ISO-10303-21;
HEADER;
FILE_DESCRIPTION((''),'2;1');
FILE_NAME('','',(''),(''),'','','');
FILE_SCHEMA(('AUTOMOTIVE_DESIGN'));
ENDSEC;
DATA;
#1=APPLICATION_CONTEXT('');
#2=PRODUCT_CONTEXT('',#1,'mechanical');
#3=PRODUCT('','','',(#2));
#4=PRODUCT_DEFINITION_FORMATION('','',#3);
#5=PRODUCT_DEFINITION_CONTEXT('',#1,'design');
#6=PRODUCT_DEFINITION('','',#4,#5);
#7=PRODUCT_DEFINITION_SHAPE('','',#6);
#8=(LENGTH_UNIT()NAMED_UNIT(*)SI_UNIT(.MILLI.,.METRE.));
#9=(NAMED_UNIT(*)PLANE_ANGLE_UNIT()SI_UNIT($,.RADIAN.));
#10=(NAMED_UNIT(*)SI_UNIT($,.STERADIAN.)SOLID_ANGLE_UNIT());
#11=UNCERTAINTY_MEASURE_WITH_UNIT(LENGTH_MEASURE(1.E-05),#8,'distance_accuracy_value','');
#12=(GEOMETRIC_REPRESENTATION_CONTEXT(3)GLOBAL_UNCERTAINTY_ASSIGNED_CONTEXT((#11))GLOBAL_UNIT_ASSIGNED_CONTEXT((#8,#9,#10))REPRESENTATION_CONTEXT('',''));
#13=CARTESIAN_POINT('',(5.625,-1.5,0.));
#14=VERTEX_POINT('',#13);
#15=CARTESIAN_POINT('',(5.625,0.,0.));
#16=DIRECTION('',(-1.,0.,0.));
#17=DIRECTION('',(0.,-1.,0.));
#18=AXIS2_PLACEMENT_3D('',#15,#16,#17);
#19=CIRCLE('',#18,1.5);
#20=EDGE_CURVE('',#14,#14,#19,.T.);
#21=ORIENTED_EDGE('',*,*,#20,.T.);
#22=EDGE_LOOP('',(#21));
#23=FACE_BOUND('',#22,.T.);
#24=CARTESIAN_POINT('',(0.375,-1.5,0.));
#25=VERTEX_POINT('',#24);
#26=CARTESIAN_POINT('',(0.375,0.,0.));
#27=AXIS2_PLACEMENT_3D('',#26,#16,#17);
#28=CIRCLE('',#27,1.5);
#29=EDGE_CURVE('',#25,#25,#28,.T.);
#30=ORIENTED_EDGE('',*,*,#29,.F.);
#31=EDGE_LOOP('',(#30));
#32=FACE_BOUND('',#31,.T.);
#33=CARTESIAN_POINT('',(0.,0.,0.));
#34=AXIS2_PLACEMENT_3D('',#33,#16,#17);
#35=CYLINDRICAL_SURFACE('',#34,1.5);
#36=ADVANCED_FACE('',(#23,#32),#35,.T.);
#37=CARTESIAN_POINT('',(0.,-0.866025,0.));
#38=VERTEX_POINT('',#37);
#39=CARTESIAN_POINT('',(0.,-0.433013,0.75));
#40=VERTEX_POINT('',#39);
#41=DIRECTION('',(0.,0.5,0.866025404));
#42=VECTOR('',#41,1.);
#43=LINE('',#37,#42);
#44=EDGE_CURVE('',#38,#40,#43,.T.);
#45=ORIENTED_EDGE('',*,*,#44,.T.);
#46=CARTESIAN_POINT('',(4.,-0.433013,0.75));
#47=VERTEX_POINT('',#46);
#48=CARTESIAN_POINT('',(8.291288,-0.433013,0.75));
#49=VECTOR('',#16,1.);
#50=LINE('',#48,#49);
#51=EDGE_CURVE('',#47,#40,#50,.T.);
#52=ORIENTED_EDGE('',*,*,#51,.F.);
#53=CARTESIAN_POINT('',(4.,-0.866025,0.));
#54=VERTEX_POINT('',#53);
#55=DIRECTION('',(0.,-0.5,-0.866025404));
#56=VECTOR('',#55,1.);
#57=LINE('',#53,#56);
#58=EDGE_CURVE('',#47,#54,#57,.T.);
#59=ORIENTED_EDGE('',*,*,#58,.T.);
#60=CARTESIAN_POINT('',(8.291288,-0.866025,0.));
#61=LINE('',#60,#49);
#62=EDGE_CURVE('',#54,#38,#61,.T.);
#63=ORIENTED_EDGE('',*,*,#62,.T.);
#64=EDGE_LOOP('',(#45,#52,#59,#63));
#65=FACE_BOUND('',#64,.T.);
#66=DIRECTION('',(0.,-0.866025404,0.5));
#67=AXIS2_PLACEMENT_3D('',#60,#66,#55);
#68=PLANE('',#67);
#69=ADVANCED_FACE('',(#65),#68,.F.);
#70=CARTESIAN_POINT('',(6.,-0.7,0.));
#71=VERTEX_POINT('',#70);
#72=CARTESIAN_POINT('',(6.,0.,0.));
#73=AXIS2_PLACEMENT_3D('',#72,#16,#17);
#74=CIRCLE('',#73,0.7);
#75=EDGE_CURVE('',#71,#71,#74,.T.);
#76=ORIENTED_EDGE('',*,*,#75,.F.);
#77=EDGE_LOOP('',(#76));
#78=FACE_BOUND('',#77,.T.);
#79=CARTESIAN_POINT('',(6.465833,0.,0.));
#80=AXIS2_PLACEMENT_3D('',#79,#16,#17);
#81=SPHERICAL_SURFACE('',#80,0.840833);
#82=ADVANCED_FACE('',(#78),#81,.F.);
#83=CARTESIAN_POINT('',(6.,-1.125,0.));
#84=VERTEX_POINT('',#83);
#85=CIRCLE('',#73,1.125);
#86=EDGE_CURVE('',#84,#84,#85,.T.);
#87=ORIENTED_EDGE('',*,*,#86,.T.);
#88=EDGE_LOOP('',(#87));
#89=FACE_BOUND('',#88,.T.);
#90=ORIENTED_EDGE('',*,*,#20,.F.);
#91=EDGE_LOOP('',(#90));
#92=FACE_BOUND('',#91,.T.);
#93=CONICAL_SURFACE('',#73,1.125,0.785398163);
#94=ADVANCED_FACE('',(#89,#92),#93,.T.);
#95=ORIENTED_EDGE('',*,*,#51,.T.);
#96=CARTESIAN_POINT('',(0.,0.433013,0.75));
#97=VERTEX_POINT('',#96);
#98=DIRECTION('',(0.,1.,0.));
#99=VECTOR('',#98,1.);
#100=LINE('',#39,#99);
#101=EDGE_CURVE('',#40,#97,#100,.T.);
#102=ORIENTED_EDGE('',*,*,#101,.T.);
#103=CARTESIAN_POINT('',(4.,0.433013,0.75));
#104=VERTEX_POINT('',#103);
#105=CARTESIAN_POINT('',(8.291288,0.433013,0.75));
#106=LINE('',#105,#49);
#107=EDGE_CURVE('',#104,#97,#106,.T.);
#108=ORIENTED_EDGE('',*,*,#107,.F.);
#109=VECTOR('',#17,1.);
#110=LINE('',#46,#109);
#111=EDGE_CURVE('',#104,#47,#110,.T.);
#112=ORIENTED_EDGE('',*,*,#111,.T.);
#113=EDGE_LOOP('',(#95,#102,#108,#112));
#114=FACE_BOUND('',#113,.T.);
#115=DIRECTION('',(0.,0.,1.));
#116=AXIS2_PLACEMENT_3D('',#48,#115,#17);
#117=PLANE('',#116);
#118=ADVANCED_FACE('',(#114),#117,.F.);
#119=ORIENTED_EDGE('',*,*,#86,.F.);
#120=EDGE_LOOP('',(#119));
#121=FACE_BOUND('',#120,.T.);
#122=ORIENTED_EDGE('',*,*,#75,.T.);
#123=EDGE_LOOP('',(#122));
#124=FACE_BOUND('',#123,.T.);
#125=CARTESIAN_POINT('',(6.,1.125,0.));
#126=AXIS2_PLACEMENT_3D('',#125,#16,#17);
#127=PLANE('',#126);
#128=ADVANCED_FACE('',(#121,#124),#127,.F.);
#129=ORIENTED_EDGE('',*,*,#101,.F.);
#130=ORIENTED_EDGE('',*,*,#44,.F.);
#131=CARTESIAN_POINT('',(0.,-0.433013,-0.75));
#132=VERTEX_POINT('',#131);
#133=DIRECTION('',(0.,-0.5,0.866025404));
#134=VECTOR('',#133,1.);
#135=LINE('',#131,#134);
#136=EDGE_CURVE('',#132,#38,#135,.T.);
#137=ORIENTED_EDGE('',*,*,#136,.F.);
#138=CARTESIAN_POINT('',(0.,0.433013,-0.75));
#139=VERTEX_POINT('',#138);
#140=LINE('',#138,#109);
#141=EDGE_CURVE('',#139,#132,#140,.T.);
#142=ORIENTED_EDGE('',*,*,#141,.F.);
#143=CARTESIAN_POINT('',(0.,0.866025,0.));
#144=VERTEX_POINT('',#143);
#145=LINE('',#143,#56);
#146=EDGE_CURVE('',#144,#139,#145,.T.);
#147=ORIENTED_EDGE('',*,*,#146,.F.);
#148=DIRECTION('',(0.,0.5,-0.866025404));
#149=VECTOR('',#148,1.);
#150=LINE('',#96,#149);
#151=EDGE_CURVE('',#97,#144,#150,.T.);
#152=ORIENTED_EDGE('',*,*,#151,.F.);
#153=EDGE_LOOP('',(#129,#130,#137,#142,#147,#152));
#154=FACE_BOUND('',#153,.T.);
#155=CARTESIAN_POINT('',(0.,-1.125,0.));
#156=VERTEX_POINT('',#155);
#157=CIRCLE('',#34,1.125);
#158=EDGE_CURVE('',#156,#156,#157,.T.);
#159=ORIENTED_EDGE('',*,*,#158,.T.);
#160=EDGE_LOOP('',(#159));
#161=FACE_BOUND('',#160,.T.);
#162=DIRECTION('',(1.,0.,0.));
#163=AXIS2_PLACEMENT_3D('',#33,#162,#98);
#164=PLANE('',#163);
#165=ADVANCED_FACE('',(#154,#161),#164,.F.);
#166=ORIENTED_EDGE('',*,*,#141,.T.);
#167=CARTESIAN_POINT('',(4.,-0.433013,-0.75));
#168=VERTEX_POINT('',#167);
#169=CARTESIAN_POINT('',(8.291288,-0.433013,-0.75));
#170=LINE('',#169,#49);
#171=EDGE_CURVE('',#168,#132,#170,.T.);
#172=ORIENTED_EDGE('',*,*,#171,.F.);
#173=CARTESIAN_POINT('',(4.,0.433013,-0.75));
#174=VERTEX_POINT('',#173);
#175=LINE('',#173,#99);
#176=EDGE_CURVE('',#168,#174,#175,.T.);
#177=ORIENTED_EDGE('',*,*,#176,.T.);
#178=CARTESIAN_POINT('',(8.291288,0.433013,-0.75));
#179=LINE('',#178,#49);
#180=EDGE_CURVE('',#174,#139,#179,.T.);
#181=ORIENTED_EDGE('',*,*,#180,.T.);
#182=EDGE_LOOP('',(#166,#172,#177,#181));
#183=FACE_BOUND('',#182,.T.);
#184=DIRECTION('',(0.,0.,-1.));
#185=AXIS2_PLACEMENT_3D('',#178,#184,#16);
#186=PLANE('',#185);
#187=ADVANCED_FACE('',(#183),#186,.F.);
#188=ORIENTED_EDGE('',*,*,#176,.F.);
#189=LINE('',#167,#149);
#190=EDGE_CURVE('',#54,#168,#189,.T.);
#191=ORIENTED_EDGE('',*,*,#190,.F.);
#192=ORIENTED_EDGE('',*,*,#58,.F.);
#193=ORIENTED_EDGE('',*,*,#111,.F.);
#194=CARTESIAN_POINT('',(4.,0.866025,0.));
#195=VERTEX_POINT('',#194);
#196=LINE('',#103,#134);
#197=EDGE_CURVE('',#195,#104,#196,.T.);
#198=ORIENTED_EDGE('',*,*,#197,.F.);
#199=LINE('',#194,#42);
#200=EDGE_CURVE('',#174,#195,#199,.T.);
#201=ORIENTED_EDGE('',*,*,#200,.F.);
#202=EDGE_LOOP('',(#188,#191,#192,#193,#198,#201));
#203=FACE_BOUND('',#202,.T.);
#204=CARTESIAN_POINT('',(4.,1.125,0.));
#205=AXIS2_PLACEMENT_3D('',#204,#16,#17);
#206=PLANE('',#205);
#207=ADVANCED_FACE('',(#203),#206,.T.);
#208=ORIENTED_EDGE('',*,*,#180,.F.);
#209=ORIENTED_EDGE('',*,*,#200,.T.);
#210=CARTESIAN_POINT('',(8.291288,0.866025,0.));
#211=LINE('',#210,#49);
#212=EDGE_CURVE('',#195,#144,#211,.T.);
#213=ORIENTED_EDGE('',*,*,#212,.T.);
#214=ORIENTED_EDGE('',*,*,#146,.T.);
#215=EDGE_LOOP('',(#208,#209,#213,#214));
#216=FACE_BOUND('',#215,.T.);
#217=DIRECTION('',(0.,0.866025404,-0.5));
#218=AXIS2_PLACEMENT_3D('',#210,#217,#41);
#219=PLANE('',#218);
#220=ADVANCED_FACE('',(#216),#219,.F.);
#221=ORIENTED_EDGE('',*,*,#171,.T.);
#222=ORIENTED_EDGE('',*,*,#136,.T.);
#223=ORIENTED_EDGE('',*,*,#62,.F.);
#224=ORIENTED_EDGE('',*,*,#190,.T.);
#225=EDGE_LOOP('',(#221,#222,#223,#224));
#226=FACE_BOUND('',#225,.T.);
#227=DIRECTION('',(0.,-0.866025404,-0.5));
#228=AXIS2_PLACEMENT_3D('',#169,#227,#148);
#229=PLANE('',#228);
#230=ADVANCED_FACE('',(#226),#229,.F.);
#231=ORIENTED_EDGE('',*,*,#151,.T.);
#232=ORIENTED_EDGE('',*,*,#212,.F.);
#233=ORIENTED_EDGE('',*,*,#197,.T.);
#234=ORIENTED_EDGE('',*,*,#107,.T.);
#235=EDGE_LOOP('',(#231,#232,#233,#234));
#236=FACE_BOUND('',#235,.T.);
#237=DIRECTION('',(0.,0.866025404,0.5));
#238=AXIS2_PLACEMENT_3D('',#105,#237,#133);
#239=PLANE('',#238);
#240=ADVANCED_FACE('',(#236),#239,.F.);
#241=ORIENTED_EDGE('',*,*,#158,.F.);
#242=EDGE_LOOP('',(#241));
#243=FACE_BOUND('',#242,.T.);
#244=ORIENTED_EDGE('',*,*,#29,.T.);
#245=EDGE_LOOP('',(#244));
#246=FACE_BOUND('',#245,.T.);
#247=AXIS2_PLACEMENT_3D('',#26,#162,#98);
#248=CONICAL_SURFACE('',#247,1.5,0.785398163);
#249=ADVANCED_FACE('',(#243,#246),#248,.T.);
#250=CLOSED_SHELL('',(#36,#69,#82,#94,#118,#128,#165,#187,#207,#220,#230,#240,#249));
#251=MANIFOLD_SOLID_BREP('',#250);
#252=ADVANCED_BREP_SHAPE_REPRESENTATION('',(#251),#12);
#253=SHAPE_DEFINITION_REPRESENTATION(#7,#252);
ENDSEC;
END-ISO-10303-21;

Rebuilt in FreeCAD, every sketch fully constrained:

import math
import FreeCAD as App
import Part
import Sketcher
from FreeCAD import Vector
Q = App.Units.Quantity


def add_polygon(sketch, points):
    """Adds a closed chain of lines whose ends are joined by coincident constraints."""
    first, n = sketch.GeometryCount, len(points)
    for a, b in zip(points, points[1:] + points[:1]):
        sketch.addGeometry(Part.LineSegment(App.Vector(*a, 0), App.Vector(*b, 0)), False)
    for i in range(n):
        sketch.addConstraint(Sketcher.Constraint("Coincident", first + i, 2, first + (i + 1) % n, 1))

doc = App.newDocument("Part")
body = doc.addObject("PartDesign::Body", "Body")

# Sketch on XY plane
sketch1 = body.newObject("Sketcher::SketchObject", "Sketch")
sketch1.AttachmentSupport = (doc.getObject("XY_Plane"), [""])
sketch1.MapMode = "FlatFace"
sketch1.addGeometry([
    Part.LineSegment(Vector(0, 1.12, 0), Vector(0, 0, 0)),  # 0
    Part.LineSegment(Vector(0, 0, 0), Vector(5.62, 0, 0)),  # 1
    Part.ArcOfCircle(Part.Circle(Vector(6.47, 0, 0), Vector(0, 0, 1), 0.84), math.radians(124), math.radians(180)),  # 2
    Part.LineSegment(Vector(6, 0.7, 0), Vector(6, 1.12, 0)),  # 3
    Part.LineSegment(Vector(6, 1.12, 0), Vector(5.62, 1.5, 0)),  # 4
    Part.LineSegment(Vector(5.62, 1.5, 0), Vector(0.38, 1.5, 0)),  # 5
    Part.LineSegment(Vector(0.38, 1.5, 0), Vector(0, 1.12, 0)),  # 6
], False)
sketch1.addConstraint([
    Sketcher.Constraint("Coincident", 0, 2, 1, 1),
    Sketcher.Constraint("Coincident", 1, 2, 2, 2),
    Sketcher.Constraint("Coincident", 2, 1, 3, 1),
    Sketcher.Constraint("Coincident", 3, 2, 4, 1),
    Sketcher.Constraint("Coincident", 4, 2, 5, 1),
    Sketcher.Constraint("Coincident", 5, 2, 6, 1),
    Sketcher.Constraint("Coincident", 6, 2, 0, 1),
    Sketcher.Constraint("Vertical", 0),
    Sketcher.Constraint("Horizontal", 1),
    Sketcher.Constraint("Vertical", 3),
    Sketcher.Constraint("Horizontal", 5),
    Sketcher.Constraint("Coincident", 0, 2, -1, 1),
    Sketcher.Constraint("PointOnObject", 2, 3, -1),
    Sketcher.Constraint("Perpendicular", 4, 6),
    Sketcher.Constraint("Horizontal", 3, 2, 6, 2),
    Sketcher.Constraint("Vertical", 1, 2, 4, 2),
    Sketcher.Constraint("Equal", 4, 6),
    Sketcher.Constraint("DistanceX", -1, 1, 2, 1, Q("6 mm")),
    Sketcher.Constraint("DistanceX", 5, 2, 5, 1, Q("5.25 mm")),
    Sketcher.Constraint("DistanceY", -1, 1, 2, 1, Q("0.7 mm")),
    Sketcher.Constraint("DistanceY", -1, 1, 4, 2, Q("1.5 mm")),
])
revolution = body.newObject("PartDesign::Revolution", "Revolution")
revolution.Profile = sketch1
revolution.ReferenceAxis = (sketch1, ["H_Axis"])
revolution.Angle = 360

# Sketch on YZ plane
sketch2 = body.newObject("Sketcher::SketchObject", "Sketch001")
sketch2.AttachmentSupport = (doc.getObject("YZ_Plane"), [""])
sketch2.MapMode = "FlatFace"
add_polygon(sketch2, [(0.9, 0), (0.4, -0.8), (-0.4, -0.8), (-0.9, 0), (-0.4, 0.8), (0.4, 0.8)])  # lines 0-5
sketch2.addConstraint([
    Sketcher.Constraint("Horizontal", 1),
    Sketcher.Constraint("Horizontal", 4),
    Sketcher.Constraint("Symmetric", 0, 2, 3, 2, -1, 1),
    Sketcher.Constraint("Symmetric", 2, 2, 5, 2, -1, 1),
    Sketcher.Constraint("PointOnObject", 2, 2, -1),
    Sketcher.Constraint("Parallel", 2, 5),
    Sketcher.Constraint("Vertical", 1, 2, 3, 2),
    Sketcher.Constraint("Angle", 0, Q("-120 deg")),
    Sketcher.Constraint("DistanceY", 1, 2, 3, 2, Q("1.5 mm")),
    Sketcher.Constraint("DistanceX", 1, 2, 1, 1, Q("0.866025 mm")),
])
pocket1 = body.newObject("PartDesign::Pocket", "Pocket")
pocket1.Profile = sketch2
pocket1.Length = 4
pocket1.Reversed = True

doc.recompute()
